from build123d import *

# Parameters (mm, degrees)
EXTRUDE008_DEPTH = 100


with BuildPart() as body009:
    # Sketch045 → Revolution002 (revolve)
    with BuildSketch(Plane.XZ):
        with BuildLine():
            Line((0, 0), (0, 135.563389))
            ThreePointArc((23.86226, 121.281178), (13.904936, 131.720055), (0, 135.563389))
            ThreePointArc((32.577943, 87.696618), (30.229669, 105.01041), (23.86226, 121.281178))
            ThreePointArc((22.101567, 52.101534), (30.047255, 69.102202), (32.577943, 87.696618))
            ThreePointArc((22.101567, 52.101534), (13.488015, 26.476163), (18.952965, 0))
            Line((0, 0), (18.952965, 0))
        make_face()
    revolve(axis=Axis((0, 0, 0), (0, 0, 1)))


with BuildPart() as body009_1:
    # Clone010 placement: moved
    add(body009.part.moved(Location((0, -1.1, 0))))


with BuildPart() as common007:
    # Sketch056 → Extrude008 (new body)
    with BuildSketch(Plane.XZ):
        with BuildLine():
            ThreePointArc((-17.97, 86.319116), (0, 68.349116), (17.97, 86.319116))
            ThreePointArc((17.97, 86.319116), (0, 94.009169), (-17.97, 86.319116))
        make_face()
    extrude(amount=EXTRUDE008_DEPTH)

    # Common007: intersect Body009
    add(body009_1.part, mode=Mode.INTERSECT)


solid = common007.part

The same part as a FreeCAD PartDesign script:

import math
import FreeCAD as App
import Part
import Sketcher

V = App.Vector

doc = App.newDocument("Part")
params = doc.addObject("Spreadsheet::Sheet", "Params")
for row, (alias, value) in enumerate([
    ("revolution_angle", "360 deg"),
    ("sketch2_radius", "17.97 mm"),
    ("pad1_length", "100 mm"),
], start=1):
    params.set(f"A{row}", alias)
    params.set(f"B{row}", "=" + value)
    params.setAlias(f"B{row}", alias)

body = doc.addObject("PartDesign::Body", "Body")

sketch1 = body.newObject("Sketcher::SketchObject", "Sketch")
sketch1.AttachmentSupport = (doc.getObject("XZ_Plane"), [""])
sketch1.MapMode = "FlatFace"
sketch1.addGeometry([
    Part.LineSegment(V(0, 136, 0), V(0, 0, 0)),
    Part.LineSegment(V(0, 0, 0), V(19, 0, 0)),
    Part.ArcOfCircle(Part.Circle(V(65, 23, 0), V(0, 0, 1), 52), math.radians(146), math.radians(207)),
    Part.ArcOfCircle(Part.Circle(V(-30, 87, 0), V(0, 0, 1), 62), math.radians(-34), math.radians(1)),
    Part.ArcOfCircle(Part.Circle(V(-41, 87, 0), V(0, 0, 1), 74), math.radians(1), math.radians(28)),
    Part.ArcOfCircle(Part.Circle(V(0, 108, 0), V(0, 0, 1), 27), math.radians(28), math.radians(90)),
], False)
sketch1.addConstraint([
    Sketcher.Constraint("Coincident", 0, 2, 1, 1),
    Sketcher.Constraint("Coincident", 1, 2, 2, 2),
    Sketcher.Constraint("Tangent", 2, 1, 3, 1),
    Sketcher.Constraint("Tangent", 3, 2, 4, 1),
    Sketcher.Constraint("Tangent", 4, 2, 5, 1),
    Sketcher.Constraint("Coincident", 5, 2, 0, 1),
    Sketcher.Constraint("Vertical", 0),
    Sketcher.Constraint("Horizontal", 1),
    Sketcher.Constraint("Coincident", 0, 2, -1, 1),
    Sketcher.Constraint("Radius", 3, 62.387511),
    Sketcher.Constraint("Radius", 5, 27.075258),
    Sketcher.Constraint("Radius", 2, 51.818155),
    Sketcher.Constraint("Radius", 4, 73.521663),
    Sketcher.Constraint("DistanceY", 0, 2, 0, 1, 135.563389),
    Sketcher.Constraint("DistanceY", 4, 3, 5, 3, 21.945901),
    Sketcher.Constraint("DistanceX", 1, 2, 2, 1, 3.148602),
    Sketcher.Constraint("DistanceX", 4, 3, 3, 2, 73.5126),
    Sketcher.Constraint("DistanceX", 1, 1, 1, 2, 18.952965),
])
revolution = body.newObject("PartDesign::Revolution", "Revolution")
revolution.Profile = sketch1
revolution.ReferenceAxis = (sketch1, ["V_Axis"])
revolution.setExpression("Angle", "Params.revolution_angle")
body2 = doc.addObject("PartDesign::Body", "Body001")
doc.recompute()

body.Placement = App.Placement(V(0, -1.1, 0), App.Rotation(V(0, 0, 1), 0))
boolean = body2.newObject("PartDesign::Boolean", "Boolean")
boolean.Type = "Fuse"
boolean.addObjects([body])
body3 = doc.addObject("PartDesign::Body", "Body002")

sketch2 = body3.newObject("Sketcher::SketchObject", "Sketch001")
sketch2.AttachmentSupport = (doc.getObject("XZ_Plane002"), [""])
sketch2.MapMode = "FlatFace"
sketch2.addGeometry([
    Part.ArcOfCircle(Part.Circle(V(0, 86, 0), V(0, 0, 1), 18), math.radians(180), math.radians(360)),
    Part.ArcOfCircle(Part.Circle(V(0, 69, 0), V(0, 0, 1), 25), math.radians(44), math.radians(136)),
], False)
sketch2.addConstraint([
    Sketcher.Constraint("Coincident", 0, 1, 1, 2),
    Sketcher.Constraint("Coincident", 1, 1, 0, 2),
    Sketcher.Constraint("Symmetric", 0, 1, 1, 1, -2),
    Sketcher.Constraint("Radius", 0, 17.97),
    Sketcher.Constraint("Radius", 1, 24.841039),
    Sketcher.Constraint("DistanceY", -1, 1, 1, 3, 69.16813),
    Sketcher.Constraint("DistanceY", -1, 1, 0, 3, 86.319116),
])
sketch2.setExpression("Constraints[3]", "Params.sketch2_radius")
pad1 = body3.newObject("PartDesign::Pad", "Pad")
pad1.Profile = sketch2
pad1.setExpression("Length", "Params.pad1_length")
doc.recompute()

boolean2 = body3.newObject("PartDesign::Boolean", "Boolean001")
boolean2.Type = "Common"
boolean2.addObjects([body2])

doc.recompute()
